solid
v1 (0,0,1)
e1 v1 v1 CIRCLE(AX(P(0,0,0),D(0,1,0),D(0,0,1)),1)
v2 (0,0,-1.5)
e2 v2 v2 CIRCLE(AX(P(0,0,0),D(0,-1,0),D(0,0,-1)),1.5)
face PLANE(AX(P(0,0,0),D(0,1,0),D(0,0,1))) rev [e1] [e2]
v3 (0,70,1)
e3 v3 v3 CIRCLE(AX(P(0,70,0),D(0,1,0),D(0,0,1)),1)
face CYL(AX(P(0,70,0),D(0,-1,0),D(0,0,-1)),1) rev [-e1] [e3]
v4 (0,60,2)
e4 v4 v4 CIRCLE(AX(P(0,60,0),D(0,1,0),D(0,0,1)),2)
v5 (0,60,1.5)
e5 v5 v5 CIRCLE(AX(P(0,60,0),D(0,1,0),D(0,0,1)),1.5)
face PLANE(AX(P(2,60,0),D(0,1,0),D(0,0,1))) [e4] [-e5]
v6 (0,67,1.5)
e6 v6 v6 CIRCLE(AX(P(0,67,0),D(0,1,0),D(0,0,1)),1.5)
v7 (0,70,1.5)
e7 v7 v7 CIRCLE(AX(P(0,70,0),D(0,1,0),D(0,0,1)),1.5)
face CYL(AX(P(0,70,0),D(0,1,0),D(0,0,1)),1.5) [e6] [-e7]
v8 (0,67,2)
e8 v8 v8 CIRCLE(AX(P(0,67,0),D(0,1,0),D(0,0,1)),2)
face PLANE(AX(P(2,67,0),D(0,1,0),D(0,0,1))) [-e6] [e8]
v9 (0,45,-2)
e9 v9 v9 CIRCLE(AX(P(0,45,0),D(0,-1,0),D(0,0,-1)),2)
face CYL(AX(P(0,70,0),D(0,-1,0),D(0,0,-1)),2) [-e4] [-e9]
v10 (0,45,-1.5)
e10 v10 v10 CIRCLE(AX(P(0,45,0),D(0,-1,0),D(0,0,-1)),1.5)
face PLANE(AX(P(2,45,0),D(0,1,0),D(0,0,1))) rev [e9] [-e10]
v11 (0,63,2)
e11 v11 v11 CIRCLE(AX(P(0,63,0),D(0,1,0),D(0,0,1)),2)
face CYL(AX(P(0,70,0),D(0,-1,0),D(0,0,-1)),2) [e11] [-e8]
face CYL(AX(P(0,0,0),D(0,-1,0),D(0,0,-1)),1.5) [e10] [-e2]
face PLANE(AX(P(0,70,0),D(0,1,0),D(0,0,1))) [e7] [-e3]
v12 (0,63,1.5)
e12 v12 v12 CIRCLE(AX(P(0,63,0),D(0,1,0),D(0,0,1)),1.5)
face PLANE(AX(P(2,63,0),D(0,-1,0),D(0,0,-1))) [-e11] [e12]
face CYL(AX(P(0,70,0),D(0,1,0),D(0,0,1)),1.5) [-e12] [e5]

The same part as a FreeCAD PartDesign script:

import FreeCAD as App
import Part
import Sketcher
from FreeCAD import Vector


def add_polygon(sketch, points):
    """Adds a closed chain of lines whose ends are joined by coincident constraints."""
    first, n = sketch.GeometryCount, len(points)
    for a, b in zip(points, points[1:] + points[:1]):
        sketch.addGeometry(Part.LineSegment(App.Vector(*a, 0), App.Vector(*b, 0)), False)
    for i in range(n):
        sketch.addConstraint(Sketcher.Constraint("Coincident", first + i, 2, first + (i + 1) % n, 1))

doc = App.newDocument("Part")
body = doc.addObject("PartDesign::Body", "Body")

# Sketch on XZ plane
sketch1 = body.newObject("Sketcher::SketchObject", "Sketch")
sketch1.AttachmentSupport = (doc.getObject("XZ_Plane"), [""])
sketch1.MapMode = "FlatFace"
sketch1.addGeometry(Part.Circle(Vector(0, 0, 0), Vector(0, 0, 1), 2), False)
sketch1.addGeometry(Part.Circle(Vector(0, 0, 0), Vector(0, 0, 1), 1), False)
sketch1.addConstraint(Sketcher.Constraint("Coincident", 0, 3, -1, 1))
sketch1.addConstraint(Sketcher.Constraint("Coincident", 1, 3, -1, 1))
sketch1.addConstraint(Sketcher.Constraint("Diameter", 0, 4.0))
sketch1.addConstraint(Sketcher.Constraint("Diameter", 1, 2.0))
pad1 = body.newObject("PartDesign::Pad", "Pad")
pad1.Profile = sketch1
pad1.Length = 70
pad1.Reversed = True

# Sketch on XY plane
sketch2 = body.newObject("Sketcher::SketchObject", "Sketch001")
sketch2.AttachmentSupport = (doc.getObject("XY_Plane"), [""])
sketch2.MapMode = "FlatFace"
add_polygon(sketch2, [(1.5, 70), (1.5, 67), (2, 67), (2, 70)])  # lines 0-3
add_polygon(sketch2, [(1.5, 63), (1.5, 60), (2, 60), (2, 63)])  # lines 4-7
sketch2.addConstraint(Sketcher.Constraint("Vertical", 0))
sketch2.addConstraint(Sketcher.Constraint("Horizontal", 1))
sketch2.addConstraint(Sketcher.Constraint("Vertical", 2))
sketch2.addConstraint(Sketcher.Constraint("Horizontal", 3))
sketch2.addConstraint(Sketcher.Constraint("Vertical", 4))
sketch2.addConstraint(Sketcher.Constraint("Horizontal", 5))
sketch2.addConstraint(Sketcher.Constraint("Vertical", 6))
sketch2.addConstraint(Sketcher.Constraint("Horizontal", 7))
sketch2.addConstraint(Sketcher.Constraint("Vertical", 3, 2, 4, 2))
sketch2.addConstraint(Sketcher.Constraint("Vertical", 2, 2, 5, 2))
sketch2.addConstraint(Sketcher.Constraint("Equal", 2, 4))
sketch2.addConstraint(Sketcher.Constraint("DistanceY", 0, 2, 0, 1, 3.0))
sketch2.addConstraint(Sketcher.Constraint("DistanceX", 1, 1, 1, 2, 0.5))
sketch2.addConstraint(Sketcher.Constraint("DistanceY", -1, 1, 0, 2, 67.0))
sketch2.addConstraint(Sketcher.Constraint("DistanceX", -1, 1, 1, 2, 2.0))
sketch2.addConstraint(Sketcher.Constraint("DistanceY", -1, 1, 4, 2, 60.0))
groove = body.newObject("PartDesign::Groove", "Groove")
groove.Profile = sketch2
groove.ReferenceAxis = (sketch2, ["V_Axis"])
groove.Angle = 360

# Sketch on XY plane
sketch3 = body.newObject("Sketcher::SketchObject", "Sketch002")
sketch3.AttachmentSupport = (doc.getObject("XY_Plane"), [""])
sketch3.MapMode = "FlatFace"
add_polygon(sketch3, [(1.5, 45), (1.5, 0), (2, 0), (2, 45)])  # lines 0-3
sketch3.addConstraint(Sketcher.Constraint("Vertical", 0))
sketch3.addConstraint(Sketcher.Constraint("Horizontal", 1))
sketch3.addConstraint(Sketcher.Constraint("Vertical", 2))
sketch3.addConstraint(Sketcher.Constraint("Horizontal", 3))
sketch3.addConstraint(Sketcher.Constraint("PointOnObject", 0, 2, -1))
sketch3.addConstraint(Sketcher.Constraint("DistanceY", 0, 2, 0, 1, 45.0))
sketch3.addConstraint(Sketcher.Constraint("DistanceX", 1, 1, 1, 2, 0.5))
sketch3.addConstraint(Sketcher.Constraint("DistanceX", -1, 1, 1, 2, 2.0))
groove2 = body.newObject("PartDesign::Groove", "Groove001")
groove2.Profile = sketch3
groove2.ReferenceAxis = (sketch3, ["V_Axis"])
groove2.Angle = 360

doc.recompute()
